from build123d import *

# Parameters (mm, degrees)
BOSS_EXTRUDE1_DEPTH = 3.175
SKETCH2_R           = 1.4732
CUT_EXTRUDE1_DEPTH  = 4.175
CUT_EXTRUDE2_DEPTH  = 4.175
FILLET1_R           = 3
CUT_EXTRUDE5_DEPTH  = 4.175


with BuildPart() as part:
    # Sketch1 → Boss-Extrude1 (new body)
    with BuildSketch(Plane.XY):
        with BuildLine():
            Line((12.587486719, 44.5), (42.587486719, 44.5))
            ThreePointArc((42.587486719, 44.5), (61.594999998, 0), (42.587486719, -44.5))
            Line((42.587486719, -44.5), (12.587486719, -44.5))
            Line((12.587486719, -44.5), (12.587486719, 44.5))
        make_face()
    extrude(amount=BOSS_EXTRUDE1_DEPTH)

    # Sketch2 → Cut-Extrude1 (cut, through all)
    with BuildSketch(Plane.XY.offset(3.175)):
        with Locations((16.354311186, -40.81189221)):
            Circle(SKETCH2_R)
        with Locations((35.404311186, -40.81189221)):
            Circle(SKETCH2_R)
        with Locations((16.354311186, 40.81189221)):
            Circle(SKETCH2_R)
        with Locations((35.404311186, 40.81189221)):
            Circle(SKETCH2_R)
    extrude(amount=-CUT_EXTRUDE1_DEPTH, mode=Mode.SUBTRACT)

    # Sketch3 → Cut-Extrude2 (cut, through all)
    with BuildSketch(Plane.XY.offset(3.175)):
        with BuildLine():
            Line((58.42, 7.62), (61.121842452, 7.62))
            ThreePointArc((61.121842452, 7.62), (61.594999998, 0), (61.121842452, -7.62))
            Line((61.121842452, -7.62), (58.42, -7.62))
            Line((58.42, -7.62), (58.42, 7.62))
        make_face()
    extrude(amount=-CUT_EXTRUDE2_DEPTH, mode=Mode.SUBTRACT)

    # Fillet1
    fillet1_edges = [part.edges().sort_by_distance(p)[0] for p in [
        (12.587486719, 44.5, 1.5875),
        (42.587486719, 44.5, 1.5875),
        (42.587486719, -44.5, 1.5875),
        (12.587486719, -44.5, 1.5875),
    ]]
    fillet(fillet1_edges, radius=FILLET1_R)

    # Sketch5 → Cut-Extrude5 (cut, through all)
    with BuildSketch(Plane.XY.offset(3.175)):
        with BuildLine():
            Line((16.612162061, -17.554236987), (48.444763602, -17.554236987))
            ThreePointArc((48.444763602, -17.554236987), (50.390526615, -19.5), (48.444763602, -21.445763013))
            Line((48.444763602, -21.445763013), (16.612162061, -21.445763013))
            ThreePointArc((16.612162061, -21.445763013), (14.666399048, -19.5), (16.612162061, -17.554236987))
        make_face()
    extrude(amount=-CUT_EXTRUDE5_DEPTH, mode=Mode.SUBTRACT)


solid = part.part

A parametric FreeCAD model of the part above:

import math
import FreeCAD as App
import Part
import Sketcher
Q = App.Units.Quantity


def edges_at(feature, points):
    """Names of the edges that pass closest to the given points."""
    edges = feature.Shape.Edges
    near = lambda p: min(range(len(edges)), key=lambda i: edges[i].distToShape(Part.Vertex(*p))[0])
    return sorted({f"Edge{near(p) + 1}" for p in points})

doc = App.newDocument("Part")
params = doc.addObject("Spreadsheet::Sheet", "Params")
for row, (alias, value) in enumerate([
    ("sketch1_radius", "2.425 in"),
    ("pad1_length", "0.125 in"),
    ("sketch2_diameter", "0.116 in"),
    ("sketch3_height", "0.6 in"),
    ("sketch3_radius", "2.425 in"),
    ("fillet_radius", "3 mm"),
], start=1):
    params.set(f"A{row}", alias)
    params.set(f"B{row}", "=" + value)
    params.setAlias(f"B{row}", alias)

body = doc.addObject("PartDesign::Body", "Body")

sketch1 = doc.addObject("Sketcher::SketchObject", "Sketch")
body.addObject(sketch1)
sketch1.AttachmentSupport = (doc.XY_Plane, [""])
sketch1.MapMode = "FlatFace"
sketch1.addGeometry([
    Part.LineSegment(App.Vector(43, 44, 0), App.Vector(13, 44, 0)),
    Part.LineSegment(App.Vector(13, 44, 0), App.Vector(13, -44, 0)),
    Part.LineSegment(App.Vector(13, -44, 0), App.Vector(43, -44, 0)),
    Part.ArcOfCircle(Part.Circle(App.Vector(0, 0, 0), App.Vector(0, 0, 1), 62), math.radians(-46), math.radians(46)),
], False)
sketch1.addConstraint([
    Sketcher.Constraint("Coincident", 0, 2, 1, 1),
    Sketcher.Constraint("Coincident", 1, 2, 2, 1),
    Sketcher.Constraint("Coincident", 2, 2, 3, 1),
    Sketcher.Constraint("Coincident", 3, 2, 0, 1),
    Sketcher.Constraint("Horizontal", 0),
    Sketcher.Constraint("Vertical", 1),
    Sketcher.Constraint("Horizontal", 2),
    Sketcher.Constraint("Coincident", 3, 3, -1, 1),
    Sketcher.Constraint("Vertical", 2, 2, 3, 2),
    Sketcher.Constraint("Radius", 3, Q("2.425 in")),
    Sketcher.Constraint("DistanceX", 0, 2, 0, 1, 30.0),
    Sketcher.Constraint("DistanceY", 1, 2, 1, 1, 89.0),
])
sketch1.setExpression("Constraints[9]", "Params.sketch1_radius")
pad1 = doc.addObject("PartDesign::Pad", "Pad")
body.addObject(pad1)
pad1.Profile = sketch1
pad1.setExpression("Length", "Params.pad1_length")

sketch2 = doc.addObject("Sketcher::SketchObject", "Sketch001")
body.addObject(sketch2)
sketch2.AttachmentSupport = (doc.XY_Plane, [""])
sketch2.MapMode = "FlatFace"
sketch2.AttachmentOffset = App.Placement(App.Vector(0, 0, 0.125 * 25.4), App.Rotation())
sketch2.addGeometry([
    Part.Circle(App.Vector(16.4, -40.8, 0), App.Vector(0, 0, 1), 1.5),
    Part.Circle(App.Vector(35.4, -40.8, 0), App.Vector(0, 0, 1), 1.5),
    Part.Circle(App.Vector(16.4, 40.8, 0), App.Vector(0, 0, 1), 1.5),
    Part.Circle(App.Vector(35.4, 40.8, 0), App.Vector(0, 0, 1), 1.5),
], False)
sketch2.addConstraint([
    Sketcher.Constraint("Equal", 0, 1),
    Sketcher.Constraint("Equal", 1, 2),
    Sketcher.Constraint("Equal", 2, 3),
    Sketcher.Constraint("Symmetric", 0, 3, 2, 3, -1),
    Sketcher.Constraint("Symmetric", 1, 3, 3, 3, -1),
    Sketcher.Constraint("Horizontal", 0, 3, 1, 3),
    Sketcher.Constraint("Diameter", 0, Q("0.116 in")),
    Sketcher.Constraint("DistanceX", 0, 3, 1, 3, Q("0.75 in")),
    Sketcher.Constraint("DistanceX", -1, 1, 0, 3, 16.354311),
    Sketcher.Constraint("DistanceY", 0, 3, -1, 1, 40.811892),
])
sketch2.setExpression("Constraints[6]", "Params.sketch2_diameter")
pocket1 = doc.addObject("PartDesign::Pocket", "Pocket")
body.addObject(pocket1)
pocket1.Profile = sketch2
pocket1.Type = "ThroughAll"

sketch3 = doc.addObject("Sketcher::SketchObject", "Sketch002")
body.addObject(sketch3)
sketch3.AttachmentSupport = (doc.XY_Plane, [""])
sketch3.MapMode = "FlatFace"
sketch3.AttachmentOffset = App.Placement(App.Vector(0, 0, 0.125 * 25.4), App.Rotation())
sketch3.addGeometry([
    Part.LineSegment(App.Vector(61.1, 7.6, 0), App.Vector(58.4, 7.6, 0)),
    Part.LineSegment(App.Vector(58.4, 7.6, 0), App.Vector(58.4, -7.6, 0)),
    Part.LineSegment(App.Vector(58.4, -7.6, 0), App.Vector(61.1, -7.6, 0)),
    Part.ArcOfCircle(Part.Circle(App.Vector(0, 0, 0), App.Vector(0, 0, 1), 61.6), math.radians(-7.11), math.radians(7.11)),
], False)
sketch3.addConstraint([
    Sketcher.Constraint("Coincident", 0, 2, 1, 1),
    Sketcher.Constraint("Coincident", 1, 2, 2, 1),
    Sketcher.Constraint("Coincident", 2, 2, 3, 1),
    Sketcher.Constraint("Coincident", 3, 2, 0, 1),
    Sketcher.Constraint("Horizontal", 0),
    Sketcher.Constraint("Vertical", 1),
    Sketcher.Constraint("Horizontal", 2),
    Sketcher.Constraint("Coincident", 3, 3, -1, 1),
    Sketcher.Constraint("Vertical", 2, 2, 3, 2),
    Sketcher.Constraint("DistanceY", 1, 2, 1, 1, Q("0.6 in")),
    Sketcher.Constraint("Radius", 3, Q("2.425 in")),
    Sketcher.Constraint("DistanceX", -1, 1, 0, 2, Q("2.3 in")),
])
sketch3.setExpression("Constraints[9]", "Params.sketch3_height")
sketch3.setExpression("Constraints[10]", "Params.sketch3_radius")
pocket2 = doc.addObject("PartDesign::Pocket", "Pocket001")
body.addObject(pocket2)
pocket2.Profile = sketch3
pocket2.Type = "ThroughAll"
doc.recompute()

fillet = doc.addObject("PartDesign::Fillet", "Fillet")
body.addObject(fillet)
fillet.Base = (pocket2, edges_at(pocket2, [
    (12.587, 44.5, 1.587),
    (42.587, 44.5, 1.587),
    (42.587, -44.5, 1.587),
    (12.587, -44.5, 1.587),
]))
fillet.setExpression("Radius", "Params.fillet_radius")

sketch4 = doc.addObject("Sketcher::SketchObject", "Sketch003")
body.addObject(sketch4)
sketch4.AttachmentSupport = (doc.XY_Plane, [""])
sketch4.MapMode = "FlatFace"
sketch4.AttachmentOffset = App.Placement(App.Vector(0, 0, 0.125 * 25.4), App.Rotation())
sketch4.addGeometry([
    Part.LineSegment(App.Vector(48.4, -17.6, 0), App.Vector(16.6, -17.6, 0)),
    Part.ArcOfCircle(Part.Circle(App.Vector(16.6, -19.5, 0), App.Vector(0, 0, 1), 1.9), math.radians(90), math.radians(270)),
    Part.LineSegment(App.Vector(16.6, -21.4, 0), App.Vector(48.4, -21.4, 0)),
    Part.ArcOfCircle(Part.Circle(App.Vector(48.4, -19.5, 0), App.Vector(0, 0, 1), 1.9), math.radians(-90), math.radians(90)),
], False)
sketch4.addConstraint([
    Sketcher.Constraint("Tangent", 0, 2, 1, 1),
    Sketcher.Constraint("Tangent", 1, 2, 2, 1),
    Sketcher.Constraint("Tangent", 2, 2, 3, 1),
    Sketcher.Constraint("Tangent", 3, 2, 0, 1),
    Sketcher.Constraint("Horizontal", 0),
    Sketcher.Constraint("Horizontal", 2),
    Sketcher.Constraint("DistanceX", 0, 2, 0, 1, 31.832602),
    Sketcher.Constraint("Radius", 1, 1.945763),
    Sketcher.Constraint("DistanceY", 1, 3, -1, 1, 19.5),
    Sketcher.Constraint("DistanceX", -1, 1, 1, 3, 16.612162),
])
pocket3 = doc.addObject("PartDesign::Pocket", "Pocket002")
body.addObject(pocket3)
pocket3.Profile = sketch4
pocket3.Type = "ThroughAll"

doc.recompute()
